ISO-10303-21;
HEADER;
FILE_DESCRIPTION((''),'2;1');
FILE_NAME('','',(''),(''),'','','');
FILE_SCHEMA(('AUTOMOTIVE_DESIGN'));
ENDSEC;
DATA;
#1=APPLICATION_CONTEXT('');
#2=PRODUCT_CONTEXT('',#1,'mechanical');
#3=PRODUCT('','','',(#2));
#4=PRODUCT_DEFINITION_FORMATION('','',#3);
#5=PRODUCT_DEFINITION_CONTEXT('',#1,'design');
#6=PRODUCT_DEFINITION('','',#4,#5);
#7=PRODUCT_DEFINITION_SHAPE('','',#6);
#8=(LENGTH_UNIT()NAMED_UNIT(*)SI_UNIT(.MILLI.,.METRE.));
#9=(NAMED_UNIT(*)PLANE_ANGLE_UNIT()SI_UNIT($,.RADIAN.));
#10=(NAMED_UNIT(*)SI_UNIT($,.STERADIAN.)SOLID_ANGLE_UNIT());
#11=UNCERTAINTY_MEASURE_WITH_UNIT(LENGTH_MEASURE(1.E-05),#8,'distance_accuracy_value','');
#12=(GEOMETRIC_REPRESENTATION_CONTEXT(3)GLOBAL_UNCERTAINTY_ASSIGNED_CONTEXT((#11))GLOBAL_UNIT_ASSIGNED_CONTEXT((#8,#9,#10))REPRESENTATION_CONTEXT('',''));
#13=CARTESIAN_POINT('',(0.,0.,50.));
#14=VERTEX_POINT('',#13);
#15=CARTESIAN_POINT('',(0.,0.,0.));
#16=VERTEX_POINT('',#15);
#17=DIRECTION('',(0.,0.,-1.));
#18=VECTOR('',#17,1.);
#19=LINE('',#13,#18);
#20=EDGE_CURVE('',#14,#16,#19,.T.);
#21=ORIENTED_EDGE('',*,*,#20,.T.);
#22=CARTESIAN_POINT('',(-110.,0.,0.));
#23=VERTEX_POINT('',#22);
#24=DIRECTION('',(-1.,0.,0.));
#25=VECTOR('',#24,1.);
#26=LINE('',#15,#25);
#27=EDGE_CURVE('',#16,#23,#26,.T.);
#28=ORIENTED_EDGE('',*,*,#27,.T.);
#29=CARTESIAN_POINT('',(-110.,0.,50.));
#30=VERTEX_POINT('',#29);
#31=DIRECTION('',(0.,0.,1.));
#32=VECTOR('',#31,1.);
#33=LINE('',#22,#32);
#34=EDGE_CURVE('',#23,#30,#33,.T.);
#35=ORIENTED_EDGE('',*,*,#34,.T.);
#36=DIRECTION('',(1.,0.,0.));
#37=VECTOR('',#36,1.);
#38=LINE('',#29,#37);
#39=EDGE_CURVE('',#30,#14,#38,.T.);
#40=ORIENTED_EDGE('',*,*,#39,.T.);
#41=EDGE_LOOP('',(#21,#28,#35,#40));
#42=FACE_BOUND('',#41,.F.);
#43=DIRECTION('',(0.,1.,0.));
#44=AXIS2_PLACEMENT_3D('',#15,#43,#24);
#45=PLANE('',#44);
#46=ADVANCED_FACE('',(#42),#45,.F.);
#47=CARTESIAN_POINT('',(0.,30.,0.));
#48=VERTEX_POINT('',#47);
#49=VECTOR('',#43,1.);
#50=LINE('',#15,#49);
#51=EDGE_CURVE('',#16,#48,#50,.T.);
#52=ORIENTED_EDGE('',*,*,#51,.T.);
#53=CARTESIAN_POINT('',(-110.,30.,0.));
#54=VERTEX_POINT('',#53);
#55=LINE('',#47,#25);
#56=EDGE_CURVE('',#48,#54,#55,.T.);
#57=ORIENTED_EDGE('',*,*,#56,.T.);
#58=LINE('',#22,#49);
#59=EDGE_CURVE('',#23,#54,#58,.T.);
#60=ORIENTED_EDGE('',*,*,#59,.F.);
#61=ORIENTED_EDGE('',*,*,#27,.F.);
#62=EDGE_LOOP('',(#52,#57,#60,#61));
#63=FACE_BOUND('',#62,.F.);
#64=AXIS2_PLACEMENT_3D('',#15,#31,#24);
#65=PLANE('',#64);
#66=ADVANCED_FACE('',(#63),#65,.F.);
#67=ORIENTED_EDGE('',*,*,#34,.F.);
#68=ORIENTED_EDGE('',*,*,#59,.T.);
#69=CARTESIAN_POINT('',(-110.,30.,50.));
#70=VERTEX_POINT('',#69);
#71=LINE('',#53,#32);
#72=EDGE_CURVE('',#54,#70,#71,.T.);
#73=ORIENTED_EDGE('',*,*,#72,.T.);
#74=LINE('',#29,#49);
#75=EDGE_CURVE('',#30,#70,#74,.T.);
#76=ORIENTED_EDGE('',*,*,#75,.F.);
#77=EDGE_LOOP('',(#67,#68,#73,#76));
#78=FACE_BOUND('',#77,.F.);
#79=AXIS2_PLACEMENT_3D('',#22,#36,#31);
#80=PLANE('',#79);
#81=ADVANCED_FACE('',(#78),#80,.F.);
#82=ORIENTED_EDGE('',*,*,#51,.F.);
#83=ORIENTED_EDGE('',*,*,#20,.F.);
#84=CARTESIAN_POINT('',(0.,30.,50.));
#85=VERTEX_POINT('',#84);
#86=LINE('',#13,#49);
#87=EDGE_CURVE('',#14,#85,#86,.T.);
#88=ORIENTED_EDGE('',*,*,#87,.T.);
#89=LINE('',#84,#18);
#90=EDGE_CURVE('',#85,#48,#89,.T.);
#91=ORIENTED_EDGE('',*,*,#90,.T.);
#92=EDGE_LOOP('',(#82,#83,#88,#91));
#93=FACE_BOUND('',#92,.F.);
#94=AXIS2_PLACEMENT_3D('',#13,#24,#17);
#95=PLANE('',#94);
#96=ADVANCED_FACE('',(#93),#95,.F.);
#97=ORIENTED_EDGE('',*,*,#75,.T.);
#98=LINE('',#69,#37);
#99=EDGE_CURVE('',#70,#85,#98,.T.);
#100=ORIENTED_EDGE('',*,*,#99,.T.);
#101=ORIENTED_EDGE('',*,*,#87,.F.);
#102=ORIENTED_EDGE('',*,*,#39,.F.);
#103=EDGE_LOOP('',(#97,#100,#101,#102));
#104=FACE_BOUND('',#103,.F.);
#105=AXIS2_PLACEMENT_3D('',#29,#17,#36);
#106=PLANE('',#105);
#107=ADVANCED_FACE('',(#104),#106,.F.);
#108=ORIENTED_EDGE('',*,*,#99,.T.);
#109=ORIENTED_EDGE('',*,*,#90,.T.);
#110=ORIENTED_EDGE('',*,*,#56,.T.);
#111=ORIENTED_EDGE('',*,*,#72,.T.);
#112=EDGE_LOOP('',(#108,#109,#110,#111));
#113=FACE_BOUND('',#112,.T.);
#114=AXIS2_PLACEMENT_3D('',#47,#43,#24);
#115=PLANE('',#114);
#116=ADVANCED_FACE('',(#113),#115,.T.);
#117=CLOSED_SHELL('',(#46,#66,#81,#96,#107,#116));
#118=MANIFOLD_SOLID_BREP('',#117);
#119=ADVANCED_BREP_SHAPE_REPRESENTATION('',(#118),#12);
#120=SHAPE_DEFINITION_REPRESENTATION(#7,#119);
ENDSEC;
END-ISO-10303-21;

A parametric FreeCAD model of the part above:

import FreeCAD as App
import Part
import Sketcher

V = App.Vector
Q = App.Units.Quantity


def add_polygon(sketch, points):
    """Adds a closed chain of lines whose ends are joined by coincident constraints."""
    first, n = sketch.GeometryCount, len(points)
    for a, b in zip(points, points[1:] + points[:1]):
        sketch.addGeometry(Part.LineSegment(App.Vector(*a, 0), App.Vector(*b, 0)), False)
    for i in range(n):
        sketch.addConstraint(Sketcher.Constraint("Coincident", first + i, 2, first + (i + 1) % n, 1))

doc = App.newDocument("Part")
params = doc.addObject("Spreadsheet::Sheet", "Params")
for row, (alias, value) in enumerate([
    ("sketch1_width", "110 mm"),
    ("sketch1_height", "50 mm"),
    ("pad1_length", "30 mm"),
], start=1):
    params.set(f"A{row}", alias)
    params.set(f"B{row}", "=" + value)
    params.setAlias(f"B{row}", alias)

body = doc.addObject("PartDesign::Body", "Body")

sketch1 = body.newObject("Sketcher::SketchObject", "Sketch")
sketch1.AttachmentSupport = (doc.getObject("XZ_Plane"), [""])
sketch1.MapMode = "FlatFace"
add_polygon(sketch1, [(0, 50), (0, 0), (-110, 0), (-110, 50)])
sketch1.addConstraint([
    Sketcher.Constraint("Vertical", 0),
    Sketcher.Constraint("Horizontal", 1),
    Sketcher.Constraint("Vertical", 2),
    Sketcher.Constraint("Horizontal", 3),
    Sketcher.Constraint("Coincident", 0, 2, -1, 1),
    Sketcher.Constraint("DistanceX", 1, 2, 1, 1, Q("110 mm")),
    Sketcher.Constraint("DistanceY", 0, 2, 0, 1, Q("50 mm")),
])
sketch1.setExpression("Constraints[9]", "Params.sketch1_width")
sketch1.setExpression("Constraints[10]", "Params.sketch1_height")
pad1 = body.newObject("PartDesign::Pad", "Pad")
pad1.Profile = sketch1
pad1.setExpression("Length", "Params.pad1_length")
pad1.Reversed = True

doc.recompute()
